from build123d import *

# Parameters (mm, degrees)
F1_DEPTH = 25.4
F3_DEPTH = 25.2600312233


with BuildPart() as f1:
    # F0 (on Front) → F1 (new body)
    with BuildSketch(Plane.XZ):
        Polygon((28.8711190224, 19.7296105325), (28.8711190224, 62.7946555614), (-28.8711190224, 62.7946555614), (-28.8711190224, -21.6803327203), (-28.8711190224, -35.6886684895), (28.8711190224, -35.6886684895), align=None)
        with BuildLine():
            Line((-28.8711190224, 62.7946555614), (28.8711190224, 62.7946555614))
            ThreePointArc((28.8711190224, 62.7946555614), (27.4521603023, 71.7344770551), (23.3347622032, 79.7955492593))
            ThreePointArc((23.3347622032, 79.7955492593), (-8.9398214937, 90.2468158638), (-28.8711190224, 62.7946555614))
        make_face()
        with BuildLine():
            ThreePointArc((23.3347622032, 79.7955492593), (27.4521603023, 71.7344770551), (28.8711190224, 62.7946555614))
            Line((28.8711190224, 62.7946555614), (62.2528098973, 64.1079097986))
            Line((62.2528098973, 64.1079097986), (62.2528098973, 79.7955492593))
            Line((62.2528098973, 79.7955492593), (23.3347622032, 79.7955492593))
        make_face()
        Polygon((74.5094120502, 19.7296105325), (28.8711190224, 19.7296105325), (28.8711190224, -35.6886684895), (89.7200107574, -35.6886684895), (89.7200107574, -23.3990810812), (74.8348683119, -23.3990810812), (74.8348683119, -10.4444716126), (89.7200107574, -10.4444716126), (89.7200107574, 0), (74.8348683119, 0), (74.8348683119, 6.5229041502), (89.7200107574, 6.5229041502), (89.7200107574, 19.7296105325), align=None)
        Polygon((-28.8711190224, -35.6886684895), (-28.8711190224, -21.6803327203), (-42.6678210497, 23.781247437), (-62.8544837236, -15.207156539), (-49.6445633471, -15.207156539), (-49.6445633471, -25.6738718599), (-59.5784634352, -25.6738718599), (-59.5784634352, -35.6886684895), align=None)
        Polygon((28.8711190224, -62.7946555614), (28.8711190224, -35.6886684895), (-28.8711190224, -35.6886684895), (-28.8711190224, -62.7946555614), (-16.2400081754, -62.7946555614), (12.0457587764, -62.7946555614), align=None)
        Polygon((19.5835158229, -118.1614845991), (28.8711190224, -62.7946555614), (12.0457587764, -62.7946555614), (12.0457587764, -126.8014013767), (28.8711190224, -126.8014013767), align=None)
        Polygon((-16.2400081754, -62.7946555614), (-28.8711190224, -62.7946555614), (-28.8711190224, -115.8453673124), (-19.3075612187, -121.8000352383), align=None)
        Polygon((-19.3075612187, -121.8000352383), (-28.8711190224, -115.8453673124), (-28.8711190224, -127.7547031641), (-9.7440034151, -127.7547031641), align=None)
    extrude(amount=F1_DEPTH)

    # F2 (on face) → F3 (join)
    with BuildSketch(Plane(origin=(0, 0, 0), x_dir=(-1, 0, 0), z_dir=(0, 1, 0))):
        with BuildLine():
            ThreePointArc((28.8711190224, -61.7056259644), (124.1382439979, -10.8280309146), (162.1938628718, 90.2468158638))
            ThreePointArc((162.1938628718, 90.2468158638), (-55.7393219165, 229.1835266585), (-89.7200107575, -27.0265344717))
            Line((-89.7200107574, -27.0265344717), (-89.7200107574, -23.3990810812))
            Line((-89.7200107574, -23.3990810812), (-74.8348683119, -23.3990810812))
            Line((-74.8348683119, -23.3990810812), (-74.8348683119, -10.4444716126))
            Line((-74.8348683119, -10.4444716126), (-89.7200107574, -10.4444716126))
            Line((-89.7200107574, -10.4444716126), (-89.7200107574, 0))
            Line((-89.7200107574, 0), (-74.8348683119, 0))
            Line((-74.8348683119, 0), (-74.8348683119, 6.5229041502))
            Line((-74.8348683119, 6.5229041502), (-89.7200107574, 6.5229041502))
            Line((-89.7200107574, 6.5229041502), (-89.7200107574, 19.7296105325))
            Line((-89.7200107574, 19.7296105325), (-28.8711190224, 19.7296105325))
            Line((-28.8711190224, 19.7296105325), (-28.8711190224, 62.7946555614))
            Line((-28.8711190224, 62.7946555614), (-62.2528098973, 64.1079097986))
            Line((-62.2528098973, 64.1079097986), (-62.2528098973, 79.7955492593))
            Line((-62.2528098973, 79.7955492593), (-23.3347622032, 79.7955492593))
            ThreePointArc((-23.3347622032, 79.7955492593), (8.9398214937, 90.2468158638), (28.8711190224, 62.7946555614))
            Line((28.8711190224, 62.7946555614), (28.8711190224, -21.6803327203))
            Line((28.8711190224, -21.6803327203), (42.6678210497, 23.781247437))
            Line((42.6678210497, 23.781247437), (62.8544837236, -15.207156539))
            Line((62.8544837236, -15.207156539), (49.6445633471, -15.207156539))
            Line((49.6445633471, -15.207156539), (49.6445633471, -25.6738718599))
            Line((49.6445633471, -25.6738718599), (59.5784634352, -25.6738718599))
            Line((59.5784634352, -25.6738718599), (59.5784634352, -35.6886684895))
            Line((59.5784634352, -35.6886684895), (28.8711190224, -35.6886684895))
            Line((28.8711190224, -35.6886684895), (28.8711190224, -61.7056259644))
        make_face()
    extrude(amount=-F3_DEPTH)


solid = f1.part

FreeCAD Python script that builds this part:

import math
import FreeCAD as App
import Part
import Sketcher

V = App.Vector
Q = App.Units.Quantity

doc = App.newDocument("Part")
body = doc.addObject("PartDesign::Body", "Body")

sketch1 = doc.addObject("Sketcher::SketchObject", "Sketch")
body.addObject(sketch1)
sketch1.AttachmentSupport = (doc.XZ_Plane, [""])
sketch1.MapMode = "FlatFace"
sketch1.addGeometry(Part.LineSegment(V(28.871119, 19.729611, 0), V(28.871119, 62.794656, 0)), False)
sketch1.addGeometry(Part.LineSegment(V(28.871119, 62.794656, 0), V(62.25281, 64.10791, 0)), False)
sketch1.addGeometry(Part.LineSegment(V(62.25281, 64.10791, 0), V(62.25281, 79.795549, 0)), False)
sketch1.addGeometry(Part.LineSegment(V(62.25281, 79.795549, 0), V(23.334762, 79.795549, 0)), False)
sketch1.addGeometry(Part.ArcOfCircle(Part.Circle(V(0, 62.794656, 0), V(0, 0, 1), 28.871119), math.radians(36.075775), math.radians(180)), False)
sketch1.addGeometry(Part.LineSegment(V(-28.871119, 62.794656, 0), V(-28.871119, -21.680333, 0)), False)
sketch1.addGeometry(Part.LineSegment(V(-28.871119, -21.680333, 0), V(-42.667821, 23.781247, 0)), False)
sketch1.addGeometry(Part.LineSegment(V(-42.667821, 23.781247, 0), V(-62.854484, -15.207157, 0)), False)
sketch1.addGeometry(Part.LineSegment(V(-62.854484, -15.207157, 0), V(-49.644563, -15.207157, 0)), False)
sketch1.addGeometry(Part.LineSegment(V(-49.644563, -15.207157, 0), V(-49.644563, -25.673872, 0)), False)
sketch1.addGeometry(Part.LineSegment(V(-49.644563, -25.673872, 0), V(-59.578463, -25.673872, 0)), False)
sketch1.addGeometry(Part.LineSegment(V(-59.578463, -25.673872, 0), V(-59.578463, -35.688668, 0)), False)
sketch1.addGeometry(Part.LineSegment(V(-59.578463, -35.688668, 0), V(-28.871119, -35.688668, 0)), False)
sketch1.addGeometry(Part.LineSegment(V(-28.871119, -35.688668, 0), V(-28.871119, -127.754703, 0)), False)
sketch1.addGeometry(Part.LineSegment(V(-28.871119, -127.754703, 0), V(-9.744003, -127.754703, 0)), False)
sketch1.addGeometry(Part.LineSegment(V(-9.744003, -127.754703, 0), V(-19.307561, -121.800035, 0)), False)
sketch1.addGeometry(Part.LineSegment(V(-19.307561, -121.800035, 0), V(-16.240008, -62.794656, 0)), False)
sketch1.addGeometry(Part.LineSegment(V(-16.240008, -62.794656, 0), V(12.045759, -62.794656, 0)), False)
sketch1.addGeometry(Part.LineSegment(V(12.045759, -62.794656, 0), V(12.045759, -126.801401, 0)), False)
sketch1.addGeometry(Part.LineSegment(V(12.045759, -126.801401, 0), V(28.871119, -126.801401, 0)), False)
sketch1.addGeometry(Part.LineSegment(V(28.871119, -126.801401, 0), V(19.583516, -118.161485, 0)), False)
sketch1.addGeometry(Part.LineSegment(V(19.583516, -118.161485, 0), V(28.871119, -62.794656, 0)), False)
sketch1.addGeometry(Part.LineSegment(V(28.871119, -62.794656, 0), V(28.871119, -35.688668, 0)), False)
sketch1.addGeometry(Part.LineSegment(V(28.871119, -35.688668, 0), V(89.720011, -35.688668, 0)), False)
sketch1.addGeometry(Part.LineSegment(V(89.720011, -35.688668, 0), V(89.720011, -23.399081, 0)), False)
sketch1.addGeometry(Part.LineSegment(V(89.720011, -23.399081, 0), V(74.834868, -23.399081, 0)), False)
sketch1.addGeometry(Part.LineSegment(V(74.834868, -23.399081, 0), V(74.834868, -10.444472, 0)), False)
sketch1.addGeometry(Part.LineSegment(V(74.834868, -10.444472, 0), V(89.720011, -10.444472, 0)), False)
sketch1.addGeometry(Part.LineSegment(V(89.720011, -10.444472, 0), V(89.720011, 0, 0)), False)
sketch1.addGeometry(Part.LineSegment(V(89.720011, 0, 0), V(74.834868, 0, 0)), False)
sketch1.addGeometry(Part.LineSegment(V(74.834868, 0, 0), V(74.834868, 6.522904, 0)), False)
sketch1.addGeometry(Part.LineSegment(V(74.834868, 6.522904, 0), V(89.720011, 6.522904, 0)), False)
sketch1.addGeometry(Part.LineSegment(V(89.720011, 6.522904, 0), V(89.720011, 19.729611, 0)), False)
sketch1.addGeometry(Part.LineSegment(V(89.720011, 19.729611, 0), V(28.871119, 19.729611, 0)), False)
sketch1.addConstraint(Sketcher.Constraint("Coincident", 0, 2, 1, 1))
sketch1.addConstraint(Sketcher.Constraint("Coincident", 1, 2, 2, 1))
sketch1.addConstraint(Sketcher.Constraint("Coincident", 2, 2, 3, 1))
sketch1.addConstraint(Sketcher.Constraint("Coincident", 3, 2, 4, 1))
sketch1.addConstraint(Sketcher.Constraint("Tangent", 4, 2, 5, 1))
sketch1.addConstraint(Sketcher.Constraint("Coincident", 5, 2, 6, 1))
sketch1.addConstraint(Sketcher.Constraint("Coincident", 6, 2, 7, 1))
sketch1.addConstraint(Sketcher.Constraint("Coincident", 7, 2, 8, 1))
sketch1.addConstraint(Sketcher.Constraint("Coincident", 8, 2, 9, 1))
sketch1.addConstraint(Sketcher.Constraint("Coincident", 9, 2, 10, 1))
sketch1.addConstraint(Sketcher.Constraint("Coincident", 10, 2, 11, 1))
sketch1.addConstraint(Sketcher.Constraint("Coincident", 11, 2, 12, 1))
sketch1.addConstraint(Sketcher.Constraint("Coincident", 12, 2, 13, 1))
sketch1.addConstraint(Sketcher.Constraint("Coincident", 13, 2, 14, 1))
sketch1.addConstraint(Sketcher.Constraint("Coincident", 14, 2, 15, 1))
sketch1.addConstraint(Sketcher.Constraint("Coincident", 15, 2, 16, 1))
sketch1.addConstraint(Sketcher.Constraint("Coincident", 16, 2, 17, 1))
sketch1.addConstraint(Sketcher.Constraint("Coincident", 17, 2, 18, 1))
sketch1.addConstraint(Sketcher.Constraint("Coincident", 18, 2, 19, 1))
sketch1.addConstraint(Sketcher.Constraint("Coincident", 19, 2, 20, 1))
sketch1.addConstraint(Sketcher.Constraint("Coincident", 20, 2, 21, 1))
sketch1.addConstraint(Sketcher.Constraint("Coincident", 21, 2, 22, 1))
sketch1.addConstraint(Sketcher.Constraint("Coincident", 22, 2, 23, 1))
sketch1.addConstraint(Sketcher.Constraint("Coincident", 23, 2, 24, 1))
sketch1.addConstraint(Sketcher.Constraint("Coincident", 24, 2, 25, 1))
sketch1.addConstraint(Sketcher.Constraint("Coincident", 25, 2, 26, 1))
sketch1.addConstraint(Sketcher.Constraint("Coincident", 26, 2, 27, 1))
sketch1.addConstraint(Sketcher.Constraint("Coincident", 27, 2, 28, 1))
sketch1.addConstraint(Sketcher.Constraint("Coincident", 28, 2, 29, 1))
sketch1.addConstraint(Sketcher.Constraint("Coincident", 29, 2, 30, 1))
sketch1.addConstraint(Sketcher.Constraint("Coincident", 30, 2, 31, 1))
sketch1.addConstraint(Sketcher.Constraint("Coincident", 31, 2, 32, 1))
sketch1.addConstraint(Sketcher.Constraint("Coincident", 32, 2, 33, 1))
sketch1.addConstraint(Sketcher.Constraint("Coincident", 33, 2, 0, 1))
sketch1.addConstraint(Sketcher.Constraint("Vertical", 0))
sketch1.addConstraint(Sketcher.Constraint("Vertical", 2))
sketch1.addConstraint(Sketcher.Constraint("Horizontal", 3))
sketch1.addConstraint(Sketcher.Constraint("Vertical", 5))
sketch1.addConstraint(Sketcher.Constraint("Horizontal", 8))
sketch1.addConstraint(Sketcher.Constraint("Vertical", 9))
sketch1.addConstraint(Sketcher.Constraint("Horizontal", 10))
sketch1.addConstraint(Sketcher.Constraint("Vertical", 11))
sketch1.addConstraint(Sketcher.Constraint("Horizontal", 12))
sketch1.addConstraint(Sketcher.Constraint("Vertical", 13))
sketch1.addConstraint(Sketcher.Constraint("Horizontal", 14))
sketch1.addConstraint(Sketcher.Constraint("Horizontal", 17))
sketch1.addConstraint(Sketcher.Constraint("Vertical", 18))
sketch1.addConstraint(Sketcher.Constraint("Horizontal", 19))
sketch1.addConstraint(Sketcher.Constraint("Vertical", 22))
sketch1.addConstraint(Sketcher.Constraint("Horizontal", 23))
sketch1.addConstraint(Sketcher.Constraint("Vertical", 24))
sketch1.addConstraint(Sketcher.Constraint("Horizontal", 25))
sketch1.addConstraint(Sketcher.Constraint("Vertical", 26))
sketch1.addConstraint(Sketcher.Constraint("Horizontal", 27))
sketch1.addConstraint(Sketcher.Constraint("Vertical", 28))
sketch1.addConstraint(Sketcher.Constraint("Horizontal", 29))
sketch1.addConstraint(Sketcher.Constraint("Vertical", 30))
sketch1.addConstraint(Sketcher.Constraint("Horizontal", 31))
sketch1.addConstraint(Sketcher.Constraint("Vertical", 32))
sketch1.addConstraint(Sketcher.Constraint("Horizontal", 33))
sketch1.addConstraint(Sketcher.Constraint("Symmetric", 4, 2, 21, 2, -1, 1))
sketch1.addConstraint(Sketcher.Constraint("Symmetric", 0, 2, 4, 2, -2))
sketch1.addConstraint(Sketcher.Constraint("Symmetric", 12, 2, 22, 2, -2))
sketch1.addConstraint(Sketcher.Constraint("PointOnObject", 4, 3, -2))
sketch1.addConstraint(Sketcher.Constraint("PointOnObject", 28, 2, -1))
sketch1.addConstraint(Sketcher.Constraint("Horizontal", 17, 2, 21, 2))
sketch1.addConstraint(Sketcher.Constraint("Vertical", 0, 2, 19, 2))
sketch1.addConstraint(Sketcher.Constraint("Vertical", 24, 2, 27, 2))
sketch1.addConstraint(Sketcher.Constraint("Vertical", 26, 2, 29, 2))
sketch1.addConstraint(Sketcher.Constraint("Vertical", 28, 2, 31, 2))
sketch1.addConstraint(Sketcher.Constraint("Radius", 4, Q("28.871119 mm")))
sketch1.addConstraint(Sketcher.Constraint("DistanceX", 10, 2, 10, 1, Q("9.9339 mm")))
sketch1.addConstraint(Sketcher.Constraint("DistanceX", 8, 1, 8, 2, Q("13.20992 mm")))
sketch1.addConstraint(Sketcher.Constraint("DistanceX", 19, 1, 19, 2, Q("16.82536 mm")))
sketch1.addConstraint(Sketcher.Constraint("DistanceX", 23, 1, 23, 2, Q("60.848892 mm")))
sketch1.addConstraint(Sketcher.Constraint("DistanceY", 2, 1, 2, 2, Q("15.687639 mm")))
sketch1.addConstraint(Sketcher.Constraint("DistanceY", 5, 2, 5, 1, Q("84.474988 mm")))
sketch1.addConstraint(Sketcher.Constraint("DistanceY", 26, 1, 26, 2, Q("12.954609 mm")))
sketch1.addConstraint(Sketcher.Constraint("DistanceY", 28, 1, 28, 2, Q("10.444472 mm")))
sketch1.addConstraint(Sketcher.Constraint("DistanceY", 18, 2, -1, 1, Q("126.801401 mm")))
sketch1.addConstraint(Sketcher.Constraint("DistanceY", 6, 2, 3, 2, Q("56.014302 mm")))
sketch1.addConstraint(Sketcher.Constraint("DistanceY", 14, 2, 18, 2, Q("0.953302 mm")))
sketch1.addConstraint(Sketcher.Constraint("DistanceX", 1, 2, 23, 2, Q("27.467201 mm")))
sketch1.addConstraint(Sketcher.Constraint("Distance", 6, Q("47.508991 mm")))
sketch1.addConstraint(Sketcher.Constraint("Distance", 20, Q("12.684941 mm")))
sketch1.addConstraint(Sketcher.Constraint("DistanceX", 3, 2, 3, 1, Q("38.918048 mm")))
sketch1.addConstraint(Sketcher.Constraint("DistanceX", 12, 1, 12, 2, Q("30.707344 mm")))
sketch1.addConstraint(Sketcher.Constraint("DistanceX", 14, 1, 14, 2, Q("19.127116 mm")))
sketch1.addConstraint(Sketcher.Constraint("DistanceX", 17, 1, 17, 2, Q("28.285767 mm")))
sketch1.addConstraint(Sketcher.Constraint("DistanceX", 25, 2, 25, 1, Q("14.885142 mm")))
sketch1.addConstraint(Sketcher.Constraint("DistanceY", 0, 1, 0, 2, Q("43.065045 mm")))
sketch1.addConstraint(Sketcher.Constraint("DistanceY", 9, 2, 9, 1, Q("10.466715 mm")))
sketch1.addConstraint(Sketcher.Constraint("DistanceY", 11, 2, 11, 1, Q("10.014797 mm")))
sketch1.addConstraint(Sketcher.Constraint("DistanceY", 13, 2, 13, 1, Q("92.066035 mm")))
sketch1.addConstraint(Sketcher.Constraint("DistanceY", 18, 2, 18, 1, Q("64.006746 mm")))
sketch1.addConstraint(Sketcher.Constraint("DistanceY", 30, 1, 30, 2, Q("6.522904 mm")))
sketch1.addConstraint(Sketcher.Constraint("DistanceX", 15, 2, -1, 1, Q("19.307561 mm")))
sketch1.addConstraint(Sketcher.Constraint("DistanceY", 15, 2, 17, 2, Q("59.00538 mm")))
sketch1.addConstraint(Sketcher.Constraint("DistanceX", 14, 2, 20, 2, Q("29.327519 mm")))
pad1 = doc.addObject("PartDesign::Pad", "Pad")
body.addObject(pad1)
pad1.Profile = sketch1
pad1.Length = Q("1 in")

sketch2 = doc.addObject("Sketcher::SketchObject", "Sketch001")
body.addObject(sketch2)
sketch2.AttachmentSupport = (doc.XZ_Plane, [""])
sketch2.MapMode = "FlatFace"
sketch2.addGeometry(Part.ArcOfCircle(Part.Circle(V(-8.939821, 90.246816, 0), V(0, 0, 1), 153.254041), math.radians(-49.926738), math.radians(262.527289)), False)
sketch2.addGeometry(Part.LineSegment(V(89.720011, -27.026534, 0), V(89.720011, -23.399081, 0)), False)
sketch2.addGeometry(Part.LineSegment(V(89.720011, -23.399081, 0), V(74.834868, -23.399081, 0)), False)
sketch2.addGeometry(Part.LineSegment(V(74.834868, -23.399081, 0), V(74.834868, -10.444472, 0)), False)
sketch2.addGeometry(Part.LineSegment(V(74.834868, -10.444472, 0), V(89.720011, -10.444472, 0)), False)
sketch2.addGeometry(Part.LineSegment(V(89.720011, -10.444472, 0), V(89.720011, 0, 0)), False)
sketch2.addGeometry(Part.LineSegment(V(89.720011, 0, 0), V(74.834868, 0, 0)), False)
sketch2.addGeometry(Part.LineSegment(V(74.834868, 0, 0), V(74.834868, 6.522904, 0)), False)
sketch2.addGeometry(Part.LineSegment(V(74.834868, 6.522904, 0), V(89.720011, 6.522904, 0)), False)
sketch2.addGeometry(Part.LineSegment(V(89.720011, 6.522904, 0), V(89.720011, 19.729611, 0)), False)
sketch2.addGeometry(Part.LineSegment(V(89.720011, 19.729611, 0), V(28.871119, 19.729611, 0)), False)
sketch2.addGeometry(Part.LineSegment(V(28.871119, 19.729611, 0), V(28.871119, 62.794656, 0)), False)
sketch2.addGeometry(Part.LineSegment(V(28.871119, 62.794656, 0), V(62.25281, 64.10791, 0)), False)
sketch2.addGeometry(Part.LineSegment(V(62.25281, 64.10791, 0), V(62.25281, 79.795549, 0)), False)
sketch2.addGeometry(Part.LineSegment(V(62.25281, 79.795549, 0), V(23.334762, 79.795549, 0)), False)
sketch2.addGeometry(Part.ArcOfCircle(Part.Circle(V(0, 62.794656, 0), V(0, 0, 1), 28.871119), math.radians(36.075775), math.radians(180)), False)
sketch2.addGeometry(Part.LineSegment(V(-28.871119, 62.794656, 0), V(-28.871119, -21.680333, 0)), False)
sketch2.addGeometry(Part.LineSegment(V(-28.871119, -21.680333, 0), V(-42.667821, 23.781247, 0)), False)
sketch2.addGeometry(Part.LineSegment(V(-42.667821, 23.781247, 0), V(-62.854484, -15.207157, 0)), False)
sketch2.addGeometry(Part.LineSegment(V(-62.854484, -15.207157, 0), V(-49.644563, -15.207157, 0)), False)
sketch2.addGeometry(Part.LineSegment(V(-49.644563, -15.207157, 0), V(-49.644563, -25.673872, 0)), False)
sketch2.addGeometry(Part.LineSegment(V(-49.644563, -25.673872, 0), V(-59.578463, -25.673872, 0)), False)
sketch2.addGeometry(Part.LineSegment(V(-59.578463, -25.673872, 0), V(-59.578463, -35.688668, 0)), False)
sketch2.addGeometry(Part.LineSegment(V(-59.578463, -35.688668, 0), V(-28.871119, -35.688668, 0)), False)
sketch2.addGeometry(Part.LineSegment(V(-28.871119, -35.688668, 0), V(-28.871119, -61.705626, 0)), False)
sketch2.addConstraint(Sketcher.Constraint("Coincident", 0, 1, 1, 1))
sketch2.addConstraint(Sketcher.Constraint("Coincident", 1, 2, 2, 1))
sketch2.addConstraint(Sketcher.Constraint("Coincident", 2, 2, 3, 1))
sketch2.addConstraint(Sketcher.Constraint("Coincident", 3, 2, 4, 1))
sketch2.addConstraint(Sketcher.Constraint("Coincident", 4, 2, 5, 1))
sketch2.addConstraint(Sketcher.Constraint("Coincident", 5, 2, 6, 1))
sketch2.addConstraint(Sketcher.Constraint("Coincident", 6, 2, 7, 1))
sketch2.addConstraint(Sketcher.Constraint("Coincident", 7, 2, 8, 1))
sketch2.addConstraint(Sketcher.Constraint("Coincident", 8, 2, 9, 1))
sketch2.addConstraint(Sketcher.Constraint("Coincident", 9, 2, 10, 1))
sketch2.addConstraint(Sketcher.Constraint("Coincident", 10, 2, 11, 1))
sketch2.addConstraint(Sketcher.Constraint("Coincident", 11, 2, 12, 1))
sketch2.addConstraint(Sketcher.Constraint("Coincident", 12, 2, 13, 1))
sketch2.addConstraint(Sketcher.Constraint("Coincident", 13, 2, 14, 1))
sketch2.addConstraint(Sketcher.Constraint("Coincident", 14, 2, 15, 1))
sketch2.addConstraint(Sketcher.Constraint("Tangent", 15, 2, 16, 1))
sketch2.addConstraint(Sketcher.Constraint("Coincident", 16, 2, 17, 1))
sketch2.addConstraint(Sketcher.Constraint("Coincident", 17, 2, 18, 1))
sketch2.addConstraint(Sketcher.Constraint("Coincident", 18, 2, 19, 1))
sketch2.addConstraint(Sketcher.Constraint("Coincident", 19, 2, 20, 1))
sketch2.addConstraint(Sketcher.Constraint("Coincident", 20, 2, 21, 1))
sketch2.addConstraint(Sketcher.Constraint("Coincident", 21, 2, 22, 1))
sketch2.addConstraint(Sketcher.Constraint("Coincident", 22, 2, 23, 1))
sketch2.addConstraint(Sketcher.Constraint("Coincident", 23, 2, 24, 1))
sketch2.addConstraint(Sketcher.Constraint("Coincident", 24, 2, 0, 2))
sketch2.addConstraint(Sketcher.Constraint("Vertical", 1))
sketch2.addConstraint(Sketcher.Constraint("Horizontal", 2))
sketch2.addConstraint(Sketcher.Constraint("Vertical", 3))
sketch2.addConstraint(Sketcher.Constraint("Horizontal", 4))
sketch2.addConstraint(Sketcher.Constraint("Vertical", 5))
sketch2.addConstraint(Sketcher.Constraint("Horizontal", 6))
sketch2.addConstraint(Sketcher.Constraint("Vertical", 7))
sketch2.addConstraint(Sketcher.Constraint("Horizontal", 8))
sketch2.addConstraint(Sketcher.Constraint("Vertical", 9))
sketch2.addConstraint(Sketcher.Constraint("Horizontal", 10))
sketch2.addConstraint(Sketcher.Constraint("Vertical", 11))
sketch2.addConstraint(Sketcher.Constraint("Vertical", 13))
sketch2.addConstraint(Sketcher.Constraint("Horizontal", 14))
sketch2.addConstraint(Sketcher.Constraint("Vertical", 16))
sketch2.addConstraint(Sketcher.Constraint("Horizontal", 19))
sketch2.addConstraint(Sketcher.Constraint("Vertical", 20))
sketch2.addConstraint(Sketcher.Constraint("Horizontal", 21))
sketch2.addConstraint(Sketcher.Constraint("Vertical", 22))
sketch2.addConstraint(Sketcher.Constraint("Horizontal", 23))
sketch2.addConstraint(Sketcher.Constraint("Vertical", 24))
sketch2.addConstraint(Sketcher.Constraint("Symmetric", 11, 2, 15, 2, -2))
sketch2.addConstraint(Sketcher.Constraint("PointOnObject", 15, 3, -2))
sketch2.addConstraint(Sketcher.Constraint("PointOnObject", 5, 2, -1))
sketch2.addConstraint(Sketcher.Constraint("Vertical", 1, 2, 4, 2))
sketch2.addConstraint(Sketcher.Constraint("Vertical", 3, 2, 6, 2))
sketch2.addConstraint(Sketcher.Constraint("Vertical", 5, 2, 8, 2))
sketch2.addConstraint(Sketcher.Constraint("Vertical", 16, 2, 23, 2))
sketch2.addConstraint(Sketcher.Constraint("Radius", 0, Q("153.254041 mm")))
sketch2.addConstraint(Sketcher.Constraint("Radius", 15, Q("28.871119 mm")))
sketch2.addConstraint(Sketcher.Constraint("DistanceX", 21, 2, 21, 1, Q("9.9339 mm")))
sketch2.addConstraint(Sketcher.Constraint("DistanceX", 10, 2, 10, 1, Q("60.848892 mm")))
sketch2.addConstraint(Sketcher.Constraint("DistanceX", 19, 1, 19, 2, Q("13.20992 mm")))
sketch2.addConstraint(Sketcher.Constraint("DistanceY", 3, 1, 3, 2, Q("12.954609 mm")))
sketch2.addConstraint(Sketcher.Constraint("DistanceY", 5, 1, 5, 2, Q("10.444472 mm")))
sketch2.addConstraint(Sketcher.Constraint("DistanceY", 13, 1, 13, 2, Q("15.687639 mm")))
sketch2.addConstraint(Sketcher.Constraint("DistanceY", 16, 2, 16, 1, Q("84.474988 mm")))
sketch2.addConstraint(Sketcher.Constraint("DistanceX", 12, 2, 9, 2, Q("27.467201 mm")))
sketch2.addConstraint(Sketcher.Constraint("DistanceY", 9, 2, 12, 2, Q("44.378299 mm")))
sketch2.addConstraint(Sketcher.Constraint("DistanceX", 17, 2, 0, 3, Q("33.728 mm")))
sketch2.addConstraint(Sketcher.Constraint("Distance", 17, Q("47.508991 mm")))
sketch2.addConstraint(Sketcher.Constraint("DistanceX", 2, 2, 2, 1, Q("14.885142 mm")))
sketch2.addConstraint(Sketcher.Constraint("DistanceX", 14, 2, 14, 1, Q("38.918048 mm")))
sketch2.addConstraint(Sketcher.Constraint("DistanceX", 23, 1, 23, 2, Q("30.707344 mm")))
sketch2.addConstraint(Sketcher.Constraint("DistanceY", 1, 1, 1, 2, Q("3.627453 mm")))
sketch2.addConstraint(Sketcher.Constraint("DistanceY", 7, 1, 7, 2, Q("6.522904 mm")))
sketch2.addConstraint(Sketcher.Constraint("DistanceY", 9, 1, 9, 2, Q("13.206706 mm")))
sketch2.addConstraint(Sketcher.Constraint("DistanceY", 20, 2, 20, 1, Q("10.466715 mm")))
sketch2.addConstraint(Sketcher.Constraint("DistanceY", 22, 2, 22, 1, Q("10.014797 mm")))
sketch2.addConstraint(Sketcher.Constraint("DistanceY", 24, 2, 24, 1, Q("26.016957 mm")))
sketch2.addConstraint(Sketcher.Constraint("DistanceX", 0, 3, -1, 1, Q("8.939821 mm")))
pad2 = doc.addObject("PartDesign::Pad", "Pad001")
body.addObject(pad2)
pad2.Profile = sketch2
pad2.Length = 25.260031

doc.recompute()
